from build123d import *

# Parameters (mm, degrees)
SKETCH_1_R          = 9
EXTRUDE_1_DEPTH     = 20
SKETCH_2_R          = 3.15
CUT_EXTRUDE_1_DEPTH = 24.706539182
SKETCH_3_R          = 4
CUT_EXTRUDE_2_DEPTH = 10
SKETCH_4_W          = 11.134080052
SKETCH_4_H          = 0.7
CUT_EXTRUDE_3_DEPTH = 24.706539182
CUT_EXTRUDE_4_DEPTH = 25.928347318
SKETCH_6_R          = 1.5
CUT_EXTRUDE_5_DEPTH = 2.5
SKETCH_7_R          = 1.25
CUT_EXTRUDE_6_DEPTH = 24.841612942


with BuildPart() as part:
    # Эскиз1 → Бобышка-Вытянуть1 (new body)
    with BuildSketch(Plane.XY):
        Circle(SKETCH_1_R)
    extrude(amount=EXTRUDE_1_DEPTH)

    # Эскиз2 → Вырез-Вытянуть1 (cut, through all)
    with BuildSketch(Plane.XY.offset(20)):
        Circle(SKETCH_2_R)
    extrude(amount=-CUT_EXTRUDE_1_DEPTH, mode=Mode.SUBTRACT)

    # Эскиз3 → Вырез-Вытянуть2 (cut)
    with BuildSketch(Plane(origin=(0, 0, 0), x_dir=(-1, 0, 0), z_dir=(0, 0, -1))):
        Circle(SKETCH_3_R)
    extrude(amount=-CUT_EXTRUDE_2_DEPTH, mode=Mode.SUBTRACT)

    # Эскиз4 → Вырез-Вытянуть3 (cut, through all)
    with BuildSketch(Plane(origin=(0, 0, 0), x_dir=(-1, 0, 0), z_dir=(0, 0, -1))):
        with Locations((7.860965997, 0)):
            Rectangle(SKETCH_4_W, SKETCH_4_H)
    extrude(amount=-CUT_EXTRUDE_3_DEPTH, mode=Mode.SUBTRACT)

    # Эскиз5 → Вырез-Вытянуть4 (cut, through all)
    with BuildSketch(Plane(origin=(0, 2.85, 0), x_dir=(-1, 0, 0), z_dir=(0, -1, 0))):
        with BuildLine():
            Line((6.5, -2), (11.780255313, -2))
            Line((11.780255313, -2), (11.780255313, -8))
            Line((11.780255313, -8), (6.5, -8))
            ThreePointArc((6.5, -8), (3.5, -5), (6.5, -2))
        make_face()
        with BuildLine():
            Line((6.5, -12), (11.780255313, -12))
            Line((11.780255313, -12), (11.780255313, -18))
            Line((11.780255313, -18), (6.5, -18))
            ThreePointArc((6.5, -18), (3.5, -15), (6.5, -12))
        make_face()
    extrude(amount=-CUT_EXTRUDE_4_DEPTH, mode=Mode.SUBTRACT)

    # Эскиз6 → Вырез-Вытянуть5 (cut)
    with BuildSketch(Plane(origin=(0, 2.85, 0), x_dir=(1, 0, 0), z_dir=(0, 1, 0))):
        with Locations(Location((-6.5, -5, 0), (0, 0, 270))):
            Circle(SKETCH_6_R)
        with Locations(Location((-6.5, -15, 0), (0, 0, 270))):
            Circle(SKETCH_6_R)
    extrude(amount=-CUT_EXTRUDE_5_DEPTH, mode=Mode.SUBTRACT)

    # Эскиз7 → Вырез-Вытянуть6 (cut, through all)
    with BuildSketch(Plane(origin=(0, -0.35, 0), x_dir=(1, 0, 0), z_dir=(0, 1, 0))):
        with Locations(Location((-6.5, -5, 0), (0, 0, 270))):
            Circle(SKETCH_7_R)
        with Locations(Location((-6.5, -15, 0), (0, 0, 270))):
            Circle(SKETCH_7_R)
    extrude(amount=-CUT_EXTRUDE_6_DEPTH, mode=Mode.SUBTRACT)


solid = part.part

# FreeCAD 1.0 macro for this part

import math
import FreeCAD as App
import Part
import Sketcher
Q = App.Units.Quantity

doc = App.newDocument("Part")
body = doc.addObject("PartDesign::Body", "Body")

sketch1 = body.newObject("Sketcher::SketchObject", "Sketch")
sketch1.AttachmentSupport = (doc.getObject("XY_Plane"), [""])
sketch1.MapMode = "FlatFace"
sketch1.addGeometry(Part.Circle(App.Vector(0, 0, 0), App.Vector(0, 0, 1), 9), False)
sketch1.addConstraint(Sketcher.Constraint("Coincident", 0, 3, -1, 1))
sketch1.addConstraint(Sketcher.Constraint("Diameter", 0, Q("18 mm")))
pad1 = body.newObject("PartDesign::Pad", "Pad")
pad1.Profile = sketch1
pad1.Length = 20

sketch2 = body.newObject("Sketcher::SketchObject", "Sketch001")
sketch2.AttachmentSupport = (doc.getObject("XY_Plane"), [""])
sketch2.MapMode = "FlatFace"
sketch2.AttachmentOffset = App.Placement(App.Vector(0, 0, 20), App.Rotation())
sketch2.addGeometry(Part.Circle(App.Vector(0, 0, 0), App.Vector(0, 0, 1), 3.1), False)
sketch2.addConstraint(Sketcher.Constraint("Coincident", 0, 3, -1, 1))
sketch2.addConstraint(Sketcher.Constraint("Diameter", 0, Q("6.3 mm")))
pocket1 = body.newObject("PartDesign::Pocket", "Pocket")
pocket1.Profile = sketch2
pocket1.Type = "ThroughAll"

sketch3 = body.newObject("Sketcher::SketchObject", "Sketch002")
sketch3.AttachmentSupport = (doc.getObject("XY_Plane"), [""])
sketch3.MapMode = "FlatFace"
sketch3.addGeometry(Part.Circle(App.Vector(0, 0, 0), App.Vector(0, 0, 1), 4), False)
sketch3.addConstraint(Sketcher.Constraint("Coincident", 0, 3, -1, 1))
sketch3.addConstraint(Sketcher.Constraint("Diameter", 0, Q("8 mm")))
pocket2 = body.newObject("PartDesign::Pocket", "Pocket001")
pocket2.Profile = sketch3
pocket2.Length = 10
pocket2.Reversed = True

sketch4 = body.newObject("Sketcher::SketchObject", "Sketch003")
sketch4.AttachmentSupport = (doc.getObject("XY_Plane"), [""])
sketch4.MapMode = "FlatFace"
sketch4.addGeometry(Part.LineSegment(App.Vector(-2.3, 0.3, 0), App.Vector(-2.3, -0.3, 0)), False)
sketch4.addGeometry(Part.LineSegment(App.Vector(-2.3, -0.3, 0), App.Vector(-13.4, -0.3, 0)), False)
sketch4.addGeometry(Part.LineSegment(App.Vector(-13.4, -0.3, 0), App.Vector(-13.4, 0.3, 0)), False)
sketch4.addGeometry(Part.LineSegment(App.Vector(-13.4, 0.3, 0), App.Vector(-2.3, 0.3, 0)), False)
sketch4.addConstraint(Sketcher.Constraint("Coincident", 0, 2, 1, 1))
sketch4.addConstraint(Sketcher.Constraint("Coincident", 1, 2, 2, 1))
sketch4.addConstraint(Sketcher.Constraint("Coincident", 2, 2, 3, 1))
sketch4.addConstraint(Sketcher.Constraint("Coincident", 3, 2, 0, 1))
sketch4.addConstraint(Sketcher.Constraint("Vertical", 0))
sketch4.addConstraint(Sketcher.Constraint("Horizontal", 1))
sketch4.addConstraint(Sketcher.Constraint("Vertical", 2))
sketch4.addConstraint(Sketcher.Constraint("Horizontal", 3))
sketch4.addConstraint(Sketcher.Constraint("DistanceY", 0, 2, 0, 1, Q("0.7 mm")))
sketch4.addConstraint(Sketcher.Constraint("DistanceY", 0, 2, -1, 1, Q("0.35 mm")))
sketch4.addConstraint(Sketcher.Constraint("DistanceX", 1, 2, 1, 1, Q("11.13408 mm")))
sketch4.addConstraint(Sketcher.Constraint("DistanceX", 0, 2, -1, 1, Q("2.293926 mm")))
pocket3 = body.newObject("PartDesign::Pocket", "Pocket002")
pocket3.Profile = sketch4
pocket3.Type = "ThroughAll"
pocket3.Reversed = True

sketch5 = body.newObject("Sketcher::SketchObject", "Sketch004")
sketch5.AttachmentSupport = (doc.getObject("XZ_Plane"), [""])
sketch5.MapMode = "FlatFace"
sketch5.AttachmentOffset = App.Placement(App.Vector(0, 0, -2.85), App.Rotation())
sketch5.addGeometry(Part.LineSegment(App.Vector(-11.8, 2, 0), App.Vector(-6.5, 2, 0)), False)
sketch5.addGeometry(Part.ArcOfCircle(Part.Circle(App.Vector(-6.5, 5, 0), App.Vector(0, 0, 1), 3), math.radians(-90), math.radians(90)), False)
sketch5.addGeometry(Part.LineSegment(App.Vector(-6.5, 8, 0), App.Vector(-11.8, 8, 0)), False)
sketch5.addGeometry(Part.LineSegment(App.Vector(-11.8, 8, 0), App.Vector(-11.8, 2, 0)), False)
sketch5.addGeometry(Part.LineSegment(App.Vector(-11.8, 12, 0), App.Vector(-6.5, 12, 0)), False)
sketch5.addGeometry(Part.ArcOfCircle(Part.Circle(App.Vector(-6.5, 15, 0), App.Vector(0, 0, 1), 3), math.radians(-90), math.radians(90)), False)
sketch5.addGeometry(Part.LineSegment(App.Vector(-6.5, 18, 0), App.Vector(-11.8, 18, 0)), False)
sketch5.addGeometry(Part.LineSegment(App.Vector(-11.8, 18, 0), App.Vector(-11.8, 12, 0)), False)
sketch5.addConstraint(Sketcher.Constraint("Tangent", 0, 2, 1, 1))
sketch5.addConstraint(Sketcher.Constraint("Tangent", 1, 2, 2, 1))
sketch5.addConstraint(Sketcher.Constraint("Coincident", 2, 2, 3, 1))
sketch5.addConstraint(Sketcher.Constraint("Coincident", 3, 2, 0, 1))
sketch5.addConstraint(Sketcher.Constraint("Tangent", 4, 2, 5, 1))
sketch5.addConstraint(Sketcher.Constraint("Tangent", 5, 2, 6, 1))
sketch5.addConstraint(Sketcher.Constraint("Coincident", 6, 2, 7, 1))
sketch5.addConstraint(Sketcher.Constraint("Coincident", 7, 2, 4, 1))
sketch5.addConstraint(Sketcher.Constraint("Horizontal", 0))
sketch5.addConstraint(Sketcher.Constraint("Horizontal", 2))
sketch5.addConstraint(Sketcher.Constraint("Vertical", 3))
sketch5.addConstraint(Sketcher.Constraint("Horizontal", 4))
sketch5.addConstraint(Sketcher.Constraint("Horizontal", 6))
sketch5.addConstraint(Sketcher.Constraint("Vertical", 7))
sketch5.addConstraint(Sketcher.Constraint("Equal", 1, 5))
sketch5.addConstraint(Sketcher.Constraint("Vertical", 1, 3, 5, 3))
sketch5.addConstraint(Sketcher.Constraint("Vertical", 3, 2, 6, 2))
sketch5.addConstraint(Sketcher.Constraint("Radius", 1, Q("3 mm")))
sketch5.addConstraint(Sketcher.Constraint("DistanceY", -1, 1, 1, 3, Q("5 mm")))
sketch5.addConstraint(Sketcher.Constraint("DistanceY", -1, 1, 5, 3, Q("15 mm")))
sketch5.addConstraint(Sketcher.Constraint("DistanceX", 1, 3, -1, 1, Q("6.5 mm")))
sketch5.addConstraint(Sketcher.Constraint("DistanceX", 0, 1, 0, 2, Q("5.280255 mm")))
pocket4 = body.newObject("PartDesign::Pocket", "Pocket003")
pocket4.Profile = sketch5
pocket4.Type = "ThroughAll"

sketch6 = body.newObject("Sketcher::SketchObject", "Sketch005")
sketch6.AttachmentSupport = (doc.getObject("XZ_Plane"), [""])
sketch6.MapMode = "FlatFace"
sketch6.AttachmentOffset = App.Placement(App.Vector(0, 0, -2.85), App.Rotation())
sketch6.addGeometry(Part.Circle(App.Vector(-6.5, 5, 0), App.Vector(0, 0, 1), 1.5), False)
sketch6.addGeometry(Part.Circle(App.Vector(-6.5, 15, 0), App.Vector(0, 0, 1), 1.5), False)
sketch6.addConstraint(Sketcher.Constraint("Equal", 0, 1))
sketch6.addConstraint(Sketcher.Constraint("Vertical", 0, 3, 1, 3))
sketch6.addConstraint(Sketcher.Constraint("Diameter", 0, Q("3 mm")))
sketch6.addConstraint(Sketcher.Constraint("DistanceY", -1, 1, 0, 3, Q("5 mm")))
sketch6.addConstraint(Sketcher.Constraint("DistanceY", -1, 1, 1, 3, Q("15 mm")))
sketch6.addConstraint(Sketcher.Constraint("DistanceX", 0, 3, -1, 1, Q("6.5 mm")))
pocket5 = body.newObject("PartDesign::Pocket", "Pocket004")
pocket5.Profile = sketch6
pocket5.Length = 2.5
pocket5.Reversed = True

sketch7 = body.newObject("Sketcher::SketchObject", "Sketch006")
sketch7.AttachmentSupport = (doc.getObject("XZ_Plane"), [""])
sketch7.MapMode = "FlatFace"
sketch7.AttachmentOffset = App.Placement(App.Vector(0, 0, 0.35), App.Rotation())
sketch7.addGeometry(Part.Circle(App.Vector(-6.5, 5, 0), App.Vector(0, 0, 1), 1.2), False)
sketch7.addGeometry(Part.Circle(App.Vector(-6.5, 15, 0), App.Vector(0, 0, 1), 1.2), False)
sketch7.addConstraint(Sketcher.Constraint("Equal", 0, 1))
sketch7.addConstraint(Sketcher.Constraint("Vertical", 0, 3, 1, 3))
sketch7.addConstraint(Sketcher.Constraint("Diameter", 0, Q("2.5 mm")))
sketch7.addConstraint(Sketcher.Constraint("DistanceY", -1, 1, 0, 3, Q("5 mm")))
sketch7.addConstraint(Sketcher.Constraint("DistanceY", -1, 1, 1, 3, Q("15 mm")))
sketch7.addConstraint(Sketcher.Constraint("DistanceX", 0, 3, -1, 1, Q("6.5 mm")))
pocket6 = body.newObject("PartDesign::Pocket", "Pocket005")
pocket6.Profile = sketch7
pocket6.Type = "ThroughAll"
pocket6.Reversed = True

doc.recompute()
